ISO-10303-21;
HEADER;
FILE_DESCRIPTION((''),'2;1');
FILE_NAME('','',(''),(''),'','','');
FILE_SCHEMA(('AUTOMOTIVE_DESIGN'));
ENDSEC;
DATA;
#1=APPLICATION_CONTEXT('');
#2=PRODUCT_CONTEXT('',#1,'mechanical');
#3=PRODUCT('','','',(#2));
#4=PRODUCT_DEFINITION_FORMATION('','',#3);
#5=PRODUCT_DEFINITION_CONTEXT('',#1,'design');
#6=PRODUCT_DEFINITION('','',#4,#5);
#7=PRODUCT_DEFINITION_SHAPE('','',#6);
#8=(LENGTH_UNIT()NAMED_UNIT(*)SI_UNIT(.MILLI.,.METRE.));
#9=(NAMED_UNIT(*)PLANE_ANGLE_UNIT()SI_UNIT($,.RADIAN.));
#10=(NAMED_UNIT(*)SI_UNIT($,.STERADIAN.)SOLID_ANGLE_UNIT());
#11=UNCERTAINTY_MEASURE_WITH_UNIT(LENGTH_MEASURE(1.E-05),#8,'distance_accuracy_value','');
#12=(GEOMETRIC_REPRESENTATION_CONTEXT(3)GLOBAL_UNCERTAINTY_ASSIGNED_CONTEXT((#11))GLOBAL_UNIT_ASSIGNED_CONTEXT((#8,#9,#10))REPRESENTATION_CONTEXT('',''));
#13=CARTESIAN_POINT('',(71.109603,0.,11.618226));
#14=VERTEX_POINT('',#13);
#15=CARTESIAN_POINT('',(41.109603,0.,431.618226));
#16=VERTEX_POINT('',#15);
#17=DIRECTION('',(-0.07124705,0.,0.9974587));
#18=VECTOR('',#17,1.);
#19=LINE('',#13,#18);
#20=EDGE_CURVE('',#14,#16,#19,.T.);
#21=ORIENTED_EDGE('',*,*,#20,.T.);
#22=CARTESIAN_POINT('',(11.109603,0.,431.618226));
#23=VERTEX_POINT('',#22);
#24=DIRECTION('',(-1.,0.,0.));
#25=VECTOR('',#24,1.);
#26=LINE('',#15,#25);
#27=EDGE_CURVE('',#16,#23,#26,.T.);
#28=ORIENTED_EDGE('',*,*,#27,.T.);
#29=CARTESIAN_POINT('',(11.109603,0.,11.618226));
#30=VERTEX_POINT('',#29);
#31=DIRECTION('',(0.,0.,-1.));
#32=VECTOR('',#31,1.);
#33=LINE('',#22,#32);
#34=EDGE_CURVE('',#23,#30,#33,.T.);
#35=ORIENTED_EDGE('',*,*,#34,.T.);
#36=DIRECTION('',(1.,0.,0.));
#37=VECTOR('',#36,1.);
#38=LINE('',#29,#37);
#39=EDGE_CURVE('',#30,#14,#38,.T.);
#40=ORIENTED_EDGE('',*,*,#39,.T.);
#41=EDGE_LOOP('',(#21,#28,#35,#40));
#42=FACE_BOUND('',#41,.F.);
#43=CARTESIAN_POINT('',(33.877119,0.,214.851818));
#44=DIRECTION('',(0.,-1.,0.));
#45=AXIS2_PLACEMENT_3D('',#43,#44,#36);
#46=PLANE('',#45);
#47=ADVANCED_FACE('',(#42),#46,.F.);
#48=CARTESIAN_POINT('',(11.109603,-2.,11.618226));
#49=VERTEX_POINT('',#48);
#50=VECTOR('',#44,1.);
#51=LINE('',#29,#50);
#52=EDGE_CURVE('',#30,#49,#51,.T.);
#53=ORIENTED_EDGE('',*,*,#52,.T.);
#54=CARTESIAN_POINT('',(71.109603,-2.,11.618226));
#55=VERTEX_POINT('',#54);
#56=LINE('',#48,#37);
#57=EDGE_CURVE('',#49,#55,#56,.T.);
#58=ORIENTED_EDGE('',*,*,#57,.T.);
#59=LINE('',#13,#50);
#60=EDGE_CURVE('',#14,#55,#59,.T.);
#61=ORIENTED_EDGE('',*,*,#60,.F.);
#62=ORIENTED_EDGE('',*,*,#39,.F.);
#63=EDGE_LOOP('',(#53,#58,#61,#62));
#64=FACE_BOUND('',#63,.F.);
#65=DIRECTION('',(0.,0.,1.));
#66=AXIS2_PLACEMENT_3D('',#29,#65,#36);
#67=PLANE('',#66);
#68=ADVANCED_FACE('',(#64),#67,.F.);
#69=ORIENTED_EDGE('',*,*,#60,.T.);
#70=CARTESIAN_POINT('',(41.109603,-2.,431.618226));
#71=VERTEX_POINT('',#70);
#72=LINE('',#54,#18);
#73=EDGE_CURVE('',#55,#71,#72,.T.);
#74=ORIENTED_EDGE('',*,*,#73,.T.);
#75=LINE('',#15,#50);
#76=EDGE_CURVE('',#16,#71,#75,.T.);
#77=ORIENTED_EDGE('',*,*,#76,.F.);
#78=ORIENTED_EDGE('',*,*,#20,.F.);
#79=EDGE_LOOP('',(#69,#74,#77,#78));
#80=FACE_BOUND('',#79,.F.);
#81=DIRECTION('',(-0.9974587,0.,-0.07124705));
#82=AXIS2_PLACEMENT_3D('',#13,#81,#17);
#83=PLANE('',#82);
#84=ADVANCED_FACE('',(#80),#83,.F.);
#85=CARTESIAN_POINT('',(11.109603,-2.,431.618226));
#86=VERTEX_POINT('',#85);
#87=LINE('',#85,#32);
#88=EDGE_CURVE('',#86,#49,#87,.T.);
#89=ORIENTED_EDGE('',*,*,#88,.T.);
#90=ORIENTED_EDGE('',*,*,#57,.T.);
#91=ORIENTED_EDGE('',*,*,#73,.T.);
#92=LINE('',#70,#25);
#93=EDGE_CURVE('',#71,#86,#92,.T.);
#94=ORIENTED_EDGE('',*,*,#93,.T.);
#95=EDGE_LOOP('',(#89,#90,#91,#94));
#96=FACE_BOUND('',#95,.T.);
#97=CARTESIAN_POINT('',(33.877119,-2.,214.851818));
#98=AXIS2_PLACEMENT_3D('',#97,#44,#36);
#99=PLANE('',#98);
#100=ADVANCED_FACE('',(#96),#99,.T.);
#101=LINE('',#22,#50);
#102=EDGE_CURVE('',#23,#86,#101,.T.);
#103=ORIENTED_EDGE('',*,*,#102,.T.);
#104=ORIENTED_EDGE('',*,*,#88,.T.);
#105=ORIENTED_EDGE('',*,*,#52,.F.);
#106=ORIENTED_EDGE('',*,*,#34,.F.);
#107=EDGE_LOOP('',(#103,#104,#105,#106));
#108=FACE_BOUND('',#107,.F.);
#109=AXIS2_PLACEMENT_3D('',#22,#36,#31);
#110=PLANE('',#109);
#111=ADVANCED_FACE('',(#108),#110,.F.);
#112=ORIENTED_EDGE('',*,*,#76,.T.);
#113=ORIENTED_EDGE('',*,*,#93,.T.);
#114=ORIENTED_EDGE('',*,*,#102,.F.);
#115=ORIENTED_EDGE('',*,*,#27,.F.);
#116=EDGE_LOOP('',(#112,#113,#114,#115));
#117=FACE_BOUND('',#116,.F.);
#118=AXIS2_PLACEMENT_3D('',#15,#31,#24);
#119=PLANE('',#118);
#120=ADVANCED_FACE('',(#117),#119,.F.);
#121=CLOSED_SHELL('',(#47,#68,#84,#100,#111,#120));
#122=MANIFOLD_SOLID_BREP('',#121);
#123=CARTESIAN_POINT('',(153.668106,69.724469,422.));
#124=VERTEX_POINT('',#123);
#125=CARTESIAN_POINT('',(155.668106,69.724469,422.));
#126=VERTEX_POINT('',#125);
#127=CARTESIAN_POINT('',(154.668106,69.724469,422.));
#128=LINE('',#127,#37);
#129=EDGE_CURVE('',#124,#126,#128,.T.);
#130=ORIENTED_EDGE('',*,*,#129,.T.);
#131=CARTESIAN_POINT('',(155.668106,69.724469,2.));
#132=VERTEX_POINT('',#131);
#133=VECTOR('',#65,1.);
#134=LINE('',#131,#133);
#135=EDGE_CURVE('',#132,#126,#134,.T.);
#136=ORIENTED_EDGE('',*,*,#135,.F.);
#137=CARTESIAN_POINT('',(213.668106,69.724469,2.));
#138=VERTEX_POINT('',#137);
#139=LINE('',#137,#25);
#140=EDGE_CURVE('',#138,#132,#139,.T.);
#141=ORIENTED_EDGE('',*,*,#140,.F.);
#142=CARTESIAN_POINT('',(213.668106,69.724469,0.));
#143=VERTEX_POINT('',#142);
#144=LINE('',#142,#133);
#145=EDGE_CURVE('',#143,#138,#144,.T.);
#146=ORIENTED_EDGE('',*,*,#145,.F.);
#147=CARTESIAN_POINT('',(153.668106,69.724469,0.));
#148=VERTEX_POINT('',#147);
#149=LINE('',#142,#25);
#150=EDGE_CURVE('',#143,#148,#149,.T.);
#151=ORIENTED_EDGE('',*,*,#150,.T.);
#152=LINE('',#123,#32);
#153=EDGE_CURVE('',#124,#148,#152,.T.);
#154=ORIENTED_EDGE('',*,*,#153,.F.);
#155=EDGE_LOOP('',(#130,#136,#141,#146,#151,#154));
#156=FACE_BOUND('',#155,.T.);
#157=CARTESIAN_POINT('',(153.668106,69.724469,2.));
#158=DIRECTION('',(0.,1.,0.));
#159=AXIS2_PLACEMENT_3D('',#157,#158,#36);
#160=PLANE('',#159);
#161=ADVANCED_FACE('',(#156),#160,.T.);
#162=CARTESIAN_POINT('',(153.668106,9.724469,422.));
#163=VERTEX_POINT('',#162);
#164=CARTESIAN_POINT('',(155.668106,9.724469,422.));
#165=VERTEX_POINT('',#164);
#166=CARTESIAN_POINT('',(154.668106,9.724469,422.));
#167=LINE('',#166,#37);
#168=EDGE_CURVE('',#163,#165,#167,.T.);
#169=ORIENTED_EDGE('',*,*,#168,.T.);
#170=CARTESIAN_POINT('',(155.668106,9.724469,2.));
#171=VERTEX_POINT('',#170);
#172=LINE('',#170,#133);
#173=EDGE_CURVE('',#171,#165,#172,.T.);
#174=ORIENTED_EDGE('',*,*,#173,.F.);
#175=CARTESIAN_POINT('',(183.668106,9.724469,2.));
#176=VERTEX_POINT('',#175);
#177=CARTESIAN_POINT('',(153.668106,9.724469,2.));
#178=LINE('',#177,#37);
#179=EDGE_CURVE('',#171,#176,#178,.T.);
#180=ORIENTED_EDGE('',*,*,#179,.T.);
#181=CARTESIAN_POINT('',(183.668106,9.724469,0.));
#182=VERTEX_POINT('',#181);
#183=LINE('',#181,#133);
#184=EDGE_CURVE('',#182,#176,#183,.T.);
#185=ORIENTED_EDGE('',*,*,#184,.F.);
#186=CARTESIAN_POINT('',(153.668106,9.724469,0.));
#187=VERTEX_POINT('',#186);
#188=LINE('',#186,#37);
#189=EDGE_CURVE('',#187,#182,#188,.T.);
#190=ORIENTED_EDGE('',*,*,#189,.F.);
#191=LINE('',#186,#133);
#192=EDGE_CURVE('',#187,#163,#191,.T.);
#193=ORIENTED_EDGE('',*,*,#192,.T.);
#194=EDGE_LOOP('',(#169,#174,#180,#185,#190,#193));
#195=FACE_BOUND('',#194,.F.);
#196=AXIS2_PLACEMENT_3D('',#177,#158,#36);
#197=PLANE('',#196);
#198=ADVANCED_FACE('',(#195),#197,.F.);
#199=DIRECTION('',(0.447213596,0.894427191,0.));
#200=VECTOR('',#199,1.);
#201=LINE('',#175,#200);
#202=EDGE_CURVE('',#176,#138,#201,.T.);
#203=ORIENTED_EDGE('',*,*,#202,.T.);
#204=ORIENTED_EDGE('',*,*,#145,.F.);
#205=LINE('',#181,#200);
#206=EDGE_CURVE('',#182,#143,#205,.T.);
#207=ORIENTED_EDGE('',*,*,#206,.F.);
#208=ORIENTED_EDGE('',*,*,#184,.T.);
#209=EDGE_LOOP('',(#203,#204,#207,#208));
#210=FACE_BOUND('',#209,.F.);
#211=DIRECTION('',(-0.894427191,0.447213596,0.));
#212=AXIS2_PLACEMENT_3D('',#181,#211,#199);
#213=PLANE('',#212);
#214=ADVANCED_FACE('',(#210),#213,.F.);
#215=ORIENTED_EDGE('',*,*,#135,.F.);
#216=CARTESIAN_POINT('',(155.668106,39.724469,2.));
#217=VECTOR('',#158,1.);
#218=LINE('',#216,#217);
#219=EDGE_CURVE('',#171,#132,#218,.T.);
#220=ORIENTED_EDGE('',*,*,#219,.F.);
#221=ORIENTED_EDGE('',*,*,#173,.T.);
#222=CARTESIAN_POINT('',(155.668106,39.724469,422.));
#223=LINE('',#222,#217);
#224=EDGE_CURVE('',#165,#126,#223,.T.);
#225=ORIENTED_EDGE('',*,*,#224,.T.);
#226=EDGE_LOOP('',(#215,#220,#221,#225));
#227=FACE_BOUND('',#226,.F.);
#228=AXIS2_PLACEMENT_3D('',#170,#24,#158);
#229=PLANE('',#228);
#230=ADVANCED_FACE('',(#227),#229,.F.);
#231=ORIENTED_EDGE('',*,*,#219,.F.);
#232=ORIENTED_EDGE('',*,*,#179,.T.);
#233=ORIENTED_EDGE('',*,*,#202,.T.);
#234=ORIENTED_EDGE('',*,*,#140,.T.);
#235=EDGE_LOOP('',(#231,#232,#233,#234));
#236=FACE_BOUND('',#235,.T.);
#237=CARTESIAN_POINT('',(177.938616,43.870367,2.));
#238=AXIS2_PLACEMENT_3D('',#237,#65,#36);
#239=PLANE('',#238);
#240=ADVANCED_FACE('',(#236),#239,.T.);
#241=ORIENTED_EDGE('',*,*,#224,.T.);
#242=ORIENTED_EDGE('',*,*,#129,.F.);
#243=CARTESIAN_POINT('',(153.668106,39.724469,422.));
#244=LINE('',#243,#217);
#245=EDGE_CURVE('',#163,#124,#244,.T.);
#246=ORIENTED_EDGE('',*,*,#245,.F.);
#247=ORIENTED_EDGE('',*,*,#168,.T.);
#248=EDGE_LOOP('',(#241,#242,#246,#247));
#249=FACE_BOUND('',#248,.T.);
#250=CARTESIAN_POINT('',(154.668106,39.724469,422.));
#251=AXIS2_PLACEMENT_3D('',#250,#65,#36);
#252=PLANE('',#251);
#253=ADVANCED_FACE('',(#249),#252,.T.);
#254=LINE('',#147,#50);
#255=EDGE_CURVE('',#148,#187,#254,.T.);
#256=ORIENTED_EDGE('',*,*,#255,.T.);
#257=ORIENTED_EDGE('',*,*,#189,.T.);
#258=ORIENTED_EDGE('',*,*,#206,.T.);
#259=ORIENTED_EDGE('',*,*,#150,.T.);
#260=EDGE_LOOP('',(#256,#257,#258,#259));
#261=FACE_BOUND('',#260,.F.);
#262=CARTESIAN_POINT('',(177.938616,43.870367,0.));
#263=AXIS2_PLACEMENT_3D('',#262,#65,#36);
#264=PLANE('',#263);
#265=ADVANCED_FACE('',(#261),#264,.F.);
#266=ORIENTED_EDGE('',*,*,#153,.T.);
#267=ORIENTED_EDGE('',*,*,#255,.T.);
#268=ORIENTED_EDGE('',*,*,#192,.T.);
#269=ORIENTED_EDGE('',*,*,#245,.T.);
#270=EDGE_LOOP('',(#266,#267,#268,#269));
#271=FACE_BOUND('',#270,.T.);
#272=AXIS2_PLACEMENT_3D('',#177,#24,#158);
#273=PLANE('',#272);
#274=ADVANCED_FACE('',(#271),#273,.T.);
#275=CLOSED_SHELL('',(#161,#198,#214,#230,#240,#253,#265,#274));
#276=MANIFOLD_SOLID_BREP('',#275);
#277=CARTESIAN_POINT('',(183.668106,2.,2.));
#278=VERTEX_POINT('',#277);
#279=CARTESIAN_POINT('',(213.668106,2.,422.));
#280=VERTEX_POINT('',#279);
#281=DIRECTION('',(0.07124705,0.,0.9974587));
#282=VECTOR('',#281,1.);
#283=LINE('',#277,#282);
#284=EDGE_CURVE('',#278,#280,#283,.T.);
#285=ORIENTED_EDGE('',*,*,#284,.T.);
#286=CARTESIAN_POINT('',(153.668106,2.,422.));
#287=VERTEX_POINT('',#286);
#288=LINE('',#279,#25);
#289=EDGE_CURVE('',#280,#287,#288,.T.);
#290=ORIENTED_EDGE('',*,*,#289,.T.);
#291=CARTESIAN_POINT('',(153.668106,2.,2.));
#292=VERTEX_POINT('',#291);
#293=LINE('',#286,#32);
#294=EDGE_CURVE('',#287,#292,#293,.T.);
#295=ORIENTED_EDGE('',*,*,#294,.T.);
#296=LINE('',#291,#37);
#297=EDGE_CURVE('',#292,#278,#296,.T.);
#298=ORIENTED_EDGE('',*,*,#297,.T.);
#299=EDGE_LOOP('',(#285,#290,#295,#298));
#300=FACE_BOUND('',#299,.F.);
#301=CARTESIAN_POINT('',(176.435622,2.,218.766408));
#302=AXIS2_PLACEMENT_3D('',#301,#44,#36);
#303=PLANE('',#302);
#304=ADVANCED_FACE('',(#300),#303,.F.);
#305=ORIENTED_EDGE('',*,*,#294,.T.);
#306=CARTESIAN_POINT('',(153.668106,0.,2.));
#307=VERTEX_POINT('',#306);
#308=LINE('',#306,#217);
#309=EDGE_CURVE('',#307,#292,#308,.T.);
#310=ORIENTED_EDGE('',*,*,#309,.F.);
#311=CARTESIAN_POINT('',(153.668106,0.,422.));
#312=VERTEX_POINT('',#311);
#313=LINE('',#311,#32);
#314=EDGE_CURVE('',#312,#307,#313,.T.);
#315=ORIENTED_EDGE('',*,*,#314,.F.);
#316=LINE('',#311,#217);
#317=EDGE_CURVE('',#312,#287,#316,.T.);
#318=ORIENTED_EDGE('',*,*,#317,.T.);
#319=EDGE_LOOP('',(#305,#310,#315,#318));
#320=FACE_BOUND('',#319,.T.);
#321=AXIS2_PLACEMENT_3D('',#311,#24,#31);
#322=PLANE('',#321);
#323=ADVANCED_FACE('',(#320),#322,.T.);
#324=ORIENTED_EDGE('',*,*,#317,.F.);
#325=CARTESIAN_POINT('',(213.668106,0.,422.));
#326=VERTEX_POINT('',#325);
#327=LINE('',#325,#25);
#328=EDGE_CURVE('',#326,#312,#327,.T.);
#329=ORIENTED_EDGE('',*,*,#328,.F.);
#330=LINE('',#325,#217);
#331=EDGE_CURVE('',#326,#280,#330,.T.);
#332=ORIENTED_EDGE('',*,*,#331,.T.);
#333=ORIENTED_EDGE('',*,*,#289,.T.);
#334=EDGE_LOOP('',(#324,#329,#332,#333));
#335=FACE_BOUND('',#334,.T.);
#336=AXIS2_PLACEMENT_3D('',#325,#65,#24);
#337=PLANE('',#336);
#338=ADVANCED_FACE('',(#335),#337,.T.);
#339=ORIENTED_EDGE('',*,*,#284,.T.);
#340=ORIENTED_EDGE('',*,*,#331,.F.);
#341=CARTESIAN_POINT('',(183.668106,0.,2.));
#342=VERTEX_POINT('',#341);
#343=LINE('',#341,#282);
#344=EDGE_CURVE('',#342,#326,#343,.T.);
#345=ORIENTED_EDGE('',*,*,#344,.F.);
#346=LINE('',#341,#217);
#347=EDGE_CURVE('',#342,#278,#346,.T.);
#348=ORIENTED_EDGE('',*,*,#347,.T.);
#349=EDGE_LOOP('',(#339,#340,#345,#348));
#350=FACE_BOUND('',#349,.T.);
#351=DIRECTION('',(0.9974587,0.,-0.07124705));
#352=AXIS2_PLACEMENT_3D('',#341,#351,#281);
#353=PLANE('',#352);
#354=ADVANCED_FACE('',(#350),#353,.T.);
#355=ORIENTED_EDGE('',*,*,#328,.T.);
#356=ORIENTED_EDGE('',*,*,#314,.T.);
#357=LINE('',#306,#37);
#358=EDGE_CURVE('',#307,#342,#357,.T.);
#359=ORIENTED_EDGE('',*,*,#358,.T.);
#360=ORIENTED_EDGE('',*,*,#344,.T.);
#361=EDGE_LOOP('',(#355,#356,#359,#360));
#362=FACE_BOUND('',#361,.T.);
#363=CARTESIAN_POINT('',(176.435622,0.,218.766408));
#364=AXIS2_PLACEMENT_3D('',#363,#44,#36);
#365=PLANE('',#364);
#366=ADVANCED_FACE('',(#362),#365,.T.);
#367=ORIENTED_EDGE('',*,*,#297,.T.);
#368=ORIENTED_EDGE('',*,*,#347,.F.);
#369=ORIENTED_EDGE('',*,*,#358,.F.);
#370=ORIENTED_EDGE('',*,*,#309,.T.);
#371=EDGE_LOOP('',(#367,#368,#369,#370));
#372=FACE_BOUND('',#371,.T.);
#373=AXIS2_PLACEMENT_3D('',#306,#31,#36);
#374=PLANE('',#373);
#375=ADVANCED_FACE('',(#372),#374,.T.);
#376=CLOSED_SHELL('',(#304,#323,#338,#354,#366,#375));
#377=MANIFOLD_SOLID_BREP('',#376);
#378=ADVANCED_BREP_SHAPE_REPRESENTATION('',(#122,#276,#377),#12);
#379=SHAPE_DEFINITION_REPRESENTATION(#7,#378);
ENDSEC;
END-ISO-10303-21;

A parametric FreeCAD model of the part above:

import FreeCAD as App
import Part
import Sketcher

V = App.Vector

doc = App.newDocument("Part")
body = doc.addObject("PartDesign::Body", "Body")

# Sketch on XY plane
sketch1 = doc.addObject("Sketcher::SketchObject", "Sketch")
body.addObject(sketch1)
sketch1.AttachmentSupport = (doc.XY_Plane, [""])
sketch1.MapMode = "FlatFace"
sketch1.addGeometry([
    Part.LineSegment(V(213.668106, 69.724469, 0), V(153.668106, 69.724469, 0)),
    Part.LineSegment(V(153.668106, 69.724469, 0), V(153.668106, 9.724469, 0)),
    Part.LineSegment(V(153.668106, 9.724469, 0), V(183.668106, 9.724469, 0)),
    Part.LineSegment(V(183.668106, 9.724469, 0), V(213.668106, 69.724469, 0)),
], False)
sketch1.addConstraint([
    Sketcher.Constraint("Coincident", 0, 2, 1, 1),
    Sketcher.Constraint("Coincident", 1, 2, 2, 1),
    Sketcher.Constraint("Coincident", 2, 2, 3, 1),
    Sketcher.Constraint("Coincident", 3, 2, 0, 1),
    Sketcher.Constraint("Horizontal", 0),
    Sketcher.Constraint("Vertical", 1),
    Sketcher.Constraint("Horizontal", 2),
    Sketcher.Constraint("Equal", 0, 1),
    Sketcher.Constraint("DistanceX", 0, 2, 0, 1, 60.0),
    Sketcher.Constraint("DistanceX", 2, 1, 2, 2, 30.0),
    Sketcher.Constraint("DistanceY", -1, 1, 0, 2, 69.724469),
    Sketcher.Constraint("DistanceX", -1, 1, 0, 2, 153.668106),
])
pad1 = doc.addObject("PartDesign::Pad", "Pad")
body.addObject(pad1)
pad1.Profile = sketch1
pad1.Length = 2

# Sketch on XY plane
sketch2 = doc.addObject("Sketcher::SketchObject", "Sketch001")
body.addObject(sketch2)
sketch2.AttachmentSupport = (doc.XY_Plane, [""])
sketch2.MapMode = "FlatFace"
sketch2.AttachmentOffset = App.Placement(V(0, 0, 2), App.Rotation())
sketch2.addGeometry([
    Part.LineSegment(V(153.668106, 69.724469, 0), V(153.668106, 9.724469, 0)),
    Part.LineSegment(V(153.668106, 9.724469, 0), V(155.668106, 9.724469, 0)),
    Part.LineSegment(V(155.668106, 9.724469, 0), V(155.668106, 69.724469, 0)),
    Part.LineSegment(V(155.668106, 69.724469, 0), V(153.668106, 69.724469, 0)),
], False)
sketch2.addConstraint([
    Sketcher.Constraint("Coincident", 0, 2, 1, 1),
    Sketcher.Constraint("Coincident", 1, 2, 2, 1),
    Sketcher.Constraint("Coincident", 2, 2, 3, 1),
    Sketcher.Constraint("Coincident", 3, 2, 0, 1),
    Sketcher.Constraint("Vertical", 0),
    Sketcher.Constraint("Horizontal", 1),
    Sketcher.Constraint("Vertical", 2),
    Sketcher.Constraint("Horizontal", 3),
    Sketcher.Constraint("DistanceX", 1, 1, 1, 2, 2.0),
    Sketcher.Constraint("DistanceY", 0, 2, 0, 1, 60.0),
    Sketcher.Constraint("DistanceY", -1, 1, 0, 2, 9.724469),
    Sketcher.Constraint("DistanceX", -1, 1, 0, 2, 153.668106),
])
pad2 = doc.addObject("PartDesign::Pad", "Pad001")
body.addObject(pad2)
pad2.Profile = sketch2
pad2.Length = 420
body2 = doc.addObject("PartDesign::Body", "Body001")

# Sketch on XZ plane
sketch3 = doc.addObject("Sketcher::SketchObject", "Sketch002")
body2.addObject(sketch3)
sketch3.AttachmentSupport = (doc.getObject("XZ_Plane001"), [""])
sketch3.MapMode = "FlatFace"
sketch3.addGeometry([
    Part.LineSegment(V(153.668106, 2, 0), V(183.668106, 2, 0)),
    Part.LineSegment(V(183.668106, 2, 0), V(213.668106, 422, 0)),
    Part.LineSegment(V(213.668106, 422, 0), V(153.668106, 422, 0)),
    Part.LineSegment(V(153.668106, 422, 0), V(153.668106, 2, 0)),
], False)
sketch3.addConstraint([
    Sketcher.Constraint("Coincident", 0, 2, 1, 1),
    Sketcher.Constraint("Coincident", 1, 2, 2, 1),
    Sketcher.Constraint("Coincident", 2, 2, 3, 1),
    Sketcher.Constraint("Coincident", 3, 2, 0, 1),
    Sketcher.Constraint("Horizontal", 0),
    Sketcher.Constraint("Horizontal", 2),
    Sketcher.Constraint("Vertical", 3),
    Sketcher.Constraint("DistanceX", 0, 1, 0, 2, 30.0),
    Sketcher.Constraint("DistanceX", 2, 2, 2, 1, 60.0),
    Sketcher.Constraint("DistanceY", 3, 2, 3, 1, 420.0),
    Sketcher.Constraint("DistanceY", -1, 1, 0, 2, 2.0),
    Sketcher.Constraint("DistanceX", -1, 1, 0, 2, 183.668106),
])
pad3 = doc.addObject("PartDesign::Pad", "Pad002")
body2.addObject(pad3)
pad3.Profile = sketch3
pad3.Length = 2
pad3.Reversed = True
body3 = doc.addObject("PartDesign::Body", "Body002")

# Sketch on XZ plane
sketch4 = doc.addObject("Sketcher::SketchObject", "Sketch003")
body3.addObject(sketch4)
sketch4.AttachmentSupport = (doc.getObject("XZ_Plane002"), [""])
sketch4.MapMode = "FlatFace"
sketch4.addGeometry([
    Part.LineSegment(V(11.109603, 11.618226, 0), V(71.109603, 11.618226, 0)),
    Part.LineSegment(V(71.109603, 11.618226, 0), V(41.109603, 431.618226, 0)),
    Part.LineSegment(V(41.109603, 431.618226, 0), V(11.109603, 431.618226, 0)),
    Part.LineSegment(V(11.109603, 431.618226, 0), V(11.109603, 11.618226, 0)),
], False)
sketch4.addConstraint([
    Sketcher.Constraint("Coincident", 0, 2, 1, 1),
    Sketcher.Constraint("Coincident", 1, 2, 2, 1),
    Sketcher.Constraint("Coincident", 2, 2, 3, 1),
    Sketcher.Constraint("Coincident", 3, 2, 0, 1),
    Sketcher.Constraint("Horizontal", 0),
    Sketcher.Constraint("Horizontal", 2),
    Sketcher.Constraint("Vertical", 3),
    Sketcher.Constraint("DistanceX", 0, 1, 0, 2, 60.0),
    Sketcher.Constraint("DistanceX", 2, 2, 2, 1, 30.0),
    Sketcher.Constraint("DistanceY", 3, 2, 3, 1, 420.0),
    Sketcher.Constraint("DistanceX", -1, 1, 0, 2, 71.109603),
    Sketcher.Constraint("DistanceY", -1, 1, 0, 2, 11.618226),
])
pad4 = doc.addObject("PartDesign::Pad", "Pad003")
body3.addObject(pad4)
pad4.Profile = sketch4
pad4.Length = 2

doc.recompute()
